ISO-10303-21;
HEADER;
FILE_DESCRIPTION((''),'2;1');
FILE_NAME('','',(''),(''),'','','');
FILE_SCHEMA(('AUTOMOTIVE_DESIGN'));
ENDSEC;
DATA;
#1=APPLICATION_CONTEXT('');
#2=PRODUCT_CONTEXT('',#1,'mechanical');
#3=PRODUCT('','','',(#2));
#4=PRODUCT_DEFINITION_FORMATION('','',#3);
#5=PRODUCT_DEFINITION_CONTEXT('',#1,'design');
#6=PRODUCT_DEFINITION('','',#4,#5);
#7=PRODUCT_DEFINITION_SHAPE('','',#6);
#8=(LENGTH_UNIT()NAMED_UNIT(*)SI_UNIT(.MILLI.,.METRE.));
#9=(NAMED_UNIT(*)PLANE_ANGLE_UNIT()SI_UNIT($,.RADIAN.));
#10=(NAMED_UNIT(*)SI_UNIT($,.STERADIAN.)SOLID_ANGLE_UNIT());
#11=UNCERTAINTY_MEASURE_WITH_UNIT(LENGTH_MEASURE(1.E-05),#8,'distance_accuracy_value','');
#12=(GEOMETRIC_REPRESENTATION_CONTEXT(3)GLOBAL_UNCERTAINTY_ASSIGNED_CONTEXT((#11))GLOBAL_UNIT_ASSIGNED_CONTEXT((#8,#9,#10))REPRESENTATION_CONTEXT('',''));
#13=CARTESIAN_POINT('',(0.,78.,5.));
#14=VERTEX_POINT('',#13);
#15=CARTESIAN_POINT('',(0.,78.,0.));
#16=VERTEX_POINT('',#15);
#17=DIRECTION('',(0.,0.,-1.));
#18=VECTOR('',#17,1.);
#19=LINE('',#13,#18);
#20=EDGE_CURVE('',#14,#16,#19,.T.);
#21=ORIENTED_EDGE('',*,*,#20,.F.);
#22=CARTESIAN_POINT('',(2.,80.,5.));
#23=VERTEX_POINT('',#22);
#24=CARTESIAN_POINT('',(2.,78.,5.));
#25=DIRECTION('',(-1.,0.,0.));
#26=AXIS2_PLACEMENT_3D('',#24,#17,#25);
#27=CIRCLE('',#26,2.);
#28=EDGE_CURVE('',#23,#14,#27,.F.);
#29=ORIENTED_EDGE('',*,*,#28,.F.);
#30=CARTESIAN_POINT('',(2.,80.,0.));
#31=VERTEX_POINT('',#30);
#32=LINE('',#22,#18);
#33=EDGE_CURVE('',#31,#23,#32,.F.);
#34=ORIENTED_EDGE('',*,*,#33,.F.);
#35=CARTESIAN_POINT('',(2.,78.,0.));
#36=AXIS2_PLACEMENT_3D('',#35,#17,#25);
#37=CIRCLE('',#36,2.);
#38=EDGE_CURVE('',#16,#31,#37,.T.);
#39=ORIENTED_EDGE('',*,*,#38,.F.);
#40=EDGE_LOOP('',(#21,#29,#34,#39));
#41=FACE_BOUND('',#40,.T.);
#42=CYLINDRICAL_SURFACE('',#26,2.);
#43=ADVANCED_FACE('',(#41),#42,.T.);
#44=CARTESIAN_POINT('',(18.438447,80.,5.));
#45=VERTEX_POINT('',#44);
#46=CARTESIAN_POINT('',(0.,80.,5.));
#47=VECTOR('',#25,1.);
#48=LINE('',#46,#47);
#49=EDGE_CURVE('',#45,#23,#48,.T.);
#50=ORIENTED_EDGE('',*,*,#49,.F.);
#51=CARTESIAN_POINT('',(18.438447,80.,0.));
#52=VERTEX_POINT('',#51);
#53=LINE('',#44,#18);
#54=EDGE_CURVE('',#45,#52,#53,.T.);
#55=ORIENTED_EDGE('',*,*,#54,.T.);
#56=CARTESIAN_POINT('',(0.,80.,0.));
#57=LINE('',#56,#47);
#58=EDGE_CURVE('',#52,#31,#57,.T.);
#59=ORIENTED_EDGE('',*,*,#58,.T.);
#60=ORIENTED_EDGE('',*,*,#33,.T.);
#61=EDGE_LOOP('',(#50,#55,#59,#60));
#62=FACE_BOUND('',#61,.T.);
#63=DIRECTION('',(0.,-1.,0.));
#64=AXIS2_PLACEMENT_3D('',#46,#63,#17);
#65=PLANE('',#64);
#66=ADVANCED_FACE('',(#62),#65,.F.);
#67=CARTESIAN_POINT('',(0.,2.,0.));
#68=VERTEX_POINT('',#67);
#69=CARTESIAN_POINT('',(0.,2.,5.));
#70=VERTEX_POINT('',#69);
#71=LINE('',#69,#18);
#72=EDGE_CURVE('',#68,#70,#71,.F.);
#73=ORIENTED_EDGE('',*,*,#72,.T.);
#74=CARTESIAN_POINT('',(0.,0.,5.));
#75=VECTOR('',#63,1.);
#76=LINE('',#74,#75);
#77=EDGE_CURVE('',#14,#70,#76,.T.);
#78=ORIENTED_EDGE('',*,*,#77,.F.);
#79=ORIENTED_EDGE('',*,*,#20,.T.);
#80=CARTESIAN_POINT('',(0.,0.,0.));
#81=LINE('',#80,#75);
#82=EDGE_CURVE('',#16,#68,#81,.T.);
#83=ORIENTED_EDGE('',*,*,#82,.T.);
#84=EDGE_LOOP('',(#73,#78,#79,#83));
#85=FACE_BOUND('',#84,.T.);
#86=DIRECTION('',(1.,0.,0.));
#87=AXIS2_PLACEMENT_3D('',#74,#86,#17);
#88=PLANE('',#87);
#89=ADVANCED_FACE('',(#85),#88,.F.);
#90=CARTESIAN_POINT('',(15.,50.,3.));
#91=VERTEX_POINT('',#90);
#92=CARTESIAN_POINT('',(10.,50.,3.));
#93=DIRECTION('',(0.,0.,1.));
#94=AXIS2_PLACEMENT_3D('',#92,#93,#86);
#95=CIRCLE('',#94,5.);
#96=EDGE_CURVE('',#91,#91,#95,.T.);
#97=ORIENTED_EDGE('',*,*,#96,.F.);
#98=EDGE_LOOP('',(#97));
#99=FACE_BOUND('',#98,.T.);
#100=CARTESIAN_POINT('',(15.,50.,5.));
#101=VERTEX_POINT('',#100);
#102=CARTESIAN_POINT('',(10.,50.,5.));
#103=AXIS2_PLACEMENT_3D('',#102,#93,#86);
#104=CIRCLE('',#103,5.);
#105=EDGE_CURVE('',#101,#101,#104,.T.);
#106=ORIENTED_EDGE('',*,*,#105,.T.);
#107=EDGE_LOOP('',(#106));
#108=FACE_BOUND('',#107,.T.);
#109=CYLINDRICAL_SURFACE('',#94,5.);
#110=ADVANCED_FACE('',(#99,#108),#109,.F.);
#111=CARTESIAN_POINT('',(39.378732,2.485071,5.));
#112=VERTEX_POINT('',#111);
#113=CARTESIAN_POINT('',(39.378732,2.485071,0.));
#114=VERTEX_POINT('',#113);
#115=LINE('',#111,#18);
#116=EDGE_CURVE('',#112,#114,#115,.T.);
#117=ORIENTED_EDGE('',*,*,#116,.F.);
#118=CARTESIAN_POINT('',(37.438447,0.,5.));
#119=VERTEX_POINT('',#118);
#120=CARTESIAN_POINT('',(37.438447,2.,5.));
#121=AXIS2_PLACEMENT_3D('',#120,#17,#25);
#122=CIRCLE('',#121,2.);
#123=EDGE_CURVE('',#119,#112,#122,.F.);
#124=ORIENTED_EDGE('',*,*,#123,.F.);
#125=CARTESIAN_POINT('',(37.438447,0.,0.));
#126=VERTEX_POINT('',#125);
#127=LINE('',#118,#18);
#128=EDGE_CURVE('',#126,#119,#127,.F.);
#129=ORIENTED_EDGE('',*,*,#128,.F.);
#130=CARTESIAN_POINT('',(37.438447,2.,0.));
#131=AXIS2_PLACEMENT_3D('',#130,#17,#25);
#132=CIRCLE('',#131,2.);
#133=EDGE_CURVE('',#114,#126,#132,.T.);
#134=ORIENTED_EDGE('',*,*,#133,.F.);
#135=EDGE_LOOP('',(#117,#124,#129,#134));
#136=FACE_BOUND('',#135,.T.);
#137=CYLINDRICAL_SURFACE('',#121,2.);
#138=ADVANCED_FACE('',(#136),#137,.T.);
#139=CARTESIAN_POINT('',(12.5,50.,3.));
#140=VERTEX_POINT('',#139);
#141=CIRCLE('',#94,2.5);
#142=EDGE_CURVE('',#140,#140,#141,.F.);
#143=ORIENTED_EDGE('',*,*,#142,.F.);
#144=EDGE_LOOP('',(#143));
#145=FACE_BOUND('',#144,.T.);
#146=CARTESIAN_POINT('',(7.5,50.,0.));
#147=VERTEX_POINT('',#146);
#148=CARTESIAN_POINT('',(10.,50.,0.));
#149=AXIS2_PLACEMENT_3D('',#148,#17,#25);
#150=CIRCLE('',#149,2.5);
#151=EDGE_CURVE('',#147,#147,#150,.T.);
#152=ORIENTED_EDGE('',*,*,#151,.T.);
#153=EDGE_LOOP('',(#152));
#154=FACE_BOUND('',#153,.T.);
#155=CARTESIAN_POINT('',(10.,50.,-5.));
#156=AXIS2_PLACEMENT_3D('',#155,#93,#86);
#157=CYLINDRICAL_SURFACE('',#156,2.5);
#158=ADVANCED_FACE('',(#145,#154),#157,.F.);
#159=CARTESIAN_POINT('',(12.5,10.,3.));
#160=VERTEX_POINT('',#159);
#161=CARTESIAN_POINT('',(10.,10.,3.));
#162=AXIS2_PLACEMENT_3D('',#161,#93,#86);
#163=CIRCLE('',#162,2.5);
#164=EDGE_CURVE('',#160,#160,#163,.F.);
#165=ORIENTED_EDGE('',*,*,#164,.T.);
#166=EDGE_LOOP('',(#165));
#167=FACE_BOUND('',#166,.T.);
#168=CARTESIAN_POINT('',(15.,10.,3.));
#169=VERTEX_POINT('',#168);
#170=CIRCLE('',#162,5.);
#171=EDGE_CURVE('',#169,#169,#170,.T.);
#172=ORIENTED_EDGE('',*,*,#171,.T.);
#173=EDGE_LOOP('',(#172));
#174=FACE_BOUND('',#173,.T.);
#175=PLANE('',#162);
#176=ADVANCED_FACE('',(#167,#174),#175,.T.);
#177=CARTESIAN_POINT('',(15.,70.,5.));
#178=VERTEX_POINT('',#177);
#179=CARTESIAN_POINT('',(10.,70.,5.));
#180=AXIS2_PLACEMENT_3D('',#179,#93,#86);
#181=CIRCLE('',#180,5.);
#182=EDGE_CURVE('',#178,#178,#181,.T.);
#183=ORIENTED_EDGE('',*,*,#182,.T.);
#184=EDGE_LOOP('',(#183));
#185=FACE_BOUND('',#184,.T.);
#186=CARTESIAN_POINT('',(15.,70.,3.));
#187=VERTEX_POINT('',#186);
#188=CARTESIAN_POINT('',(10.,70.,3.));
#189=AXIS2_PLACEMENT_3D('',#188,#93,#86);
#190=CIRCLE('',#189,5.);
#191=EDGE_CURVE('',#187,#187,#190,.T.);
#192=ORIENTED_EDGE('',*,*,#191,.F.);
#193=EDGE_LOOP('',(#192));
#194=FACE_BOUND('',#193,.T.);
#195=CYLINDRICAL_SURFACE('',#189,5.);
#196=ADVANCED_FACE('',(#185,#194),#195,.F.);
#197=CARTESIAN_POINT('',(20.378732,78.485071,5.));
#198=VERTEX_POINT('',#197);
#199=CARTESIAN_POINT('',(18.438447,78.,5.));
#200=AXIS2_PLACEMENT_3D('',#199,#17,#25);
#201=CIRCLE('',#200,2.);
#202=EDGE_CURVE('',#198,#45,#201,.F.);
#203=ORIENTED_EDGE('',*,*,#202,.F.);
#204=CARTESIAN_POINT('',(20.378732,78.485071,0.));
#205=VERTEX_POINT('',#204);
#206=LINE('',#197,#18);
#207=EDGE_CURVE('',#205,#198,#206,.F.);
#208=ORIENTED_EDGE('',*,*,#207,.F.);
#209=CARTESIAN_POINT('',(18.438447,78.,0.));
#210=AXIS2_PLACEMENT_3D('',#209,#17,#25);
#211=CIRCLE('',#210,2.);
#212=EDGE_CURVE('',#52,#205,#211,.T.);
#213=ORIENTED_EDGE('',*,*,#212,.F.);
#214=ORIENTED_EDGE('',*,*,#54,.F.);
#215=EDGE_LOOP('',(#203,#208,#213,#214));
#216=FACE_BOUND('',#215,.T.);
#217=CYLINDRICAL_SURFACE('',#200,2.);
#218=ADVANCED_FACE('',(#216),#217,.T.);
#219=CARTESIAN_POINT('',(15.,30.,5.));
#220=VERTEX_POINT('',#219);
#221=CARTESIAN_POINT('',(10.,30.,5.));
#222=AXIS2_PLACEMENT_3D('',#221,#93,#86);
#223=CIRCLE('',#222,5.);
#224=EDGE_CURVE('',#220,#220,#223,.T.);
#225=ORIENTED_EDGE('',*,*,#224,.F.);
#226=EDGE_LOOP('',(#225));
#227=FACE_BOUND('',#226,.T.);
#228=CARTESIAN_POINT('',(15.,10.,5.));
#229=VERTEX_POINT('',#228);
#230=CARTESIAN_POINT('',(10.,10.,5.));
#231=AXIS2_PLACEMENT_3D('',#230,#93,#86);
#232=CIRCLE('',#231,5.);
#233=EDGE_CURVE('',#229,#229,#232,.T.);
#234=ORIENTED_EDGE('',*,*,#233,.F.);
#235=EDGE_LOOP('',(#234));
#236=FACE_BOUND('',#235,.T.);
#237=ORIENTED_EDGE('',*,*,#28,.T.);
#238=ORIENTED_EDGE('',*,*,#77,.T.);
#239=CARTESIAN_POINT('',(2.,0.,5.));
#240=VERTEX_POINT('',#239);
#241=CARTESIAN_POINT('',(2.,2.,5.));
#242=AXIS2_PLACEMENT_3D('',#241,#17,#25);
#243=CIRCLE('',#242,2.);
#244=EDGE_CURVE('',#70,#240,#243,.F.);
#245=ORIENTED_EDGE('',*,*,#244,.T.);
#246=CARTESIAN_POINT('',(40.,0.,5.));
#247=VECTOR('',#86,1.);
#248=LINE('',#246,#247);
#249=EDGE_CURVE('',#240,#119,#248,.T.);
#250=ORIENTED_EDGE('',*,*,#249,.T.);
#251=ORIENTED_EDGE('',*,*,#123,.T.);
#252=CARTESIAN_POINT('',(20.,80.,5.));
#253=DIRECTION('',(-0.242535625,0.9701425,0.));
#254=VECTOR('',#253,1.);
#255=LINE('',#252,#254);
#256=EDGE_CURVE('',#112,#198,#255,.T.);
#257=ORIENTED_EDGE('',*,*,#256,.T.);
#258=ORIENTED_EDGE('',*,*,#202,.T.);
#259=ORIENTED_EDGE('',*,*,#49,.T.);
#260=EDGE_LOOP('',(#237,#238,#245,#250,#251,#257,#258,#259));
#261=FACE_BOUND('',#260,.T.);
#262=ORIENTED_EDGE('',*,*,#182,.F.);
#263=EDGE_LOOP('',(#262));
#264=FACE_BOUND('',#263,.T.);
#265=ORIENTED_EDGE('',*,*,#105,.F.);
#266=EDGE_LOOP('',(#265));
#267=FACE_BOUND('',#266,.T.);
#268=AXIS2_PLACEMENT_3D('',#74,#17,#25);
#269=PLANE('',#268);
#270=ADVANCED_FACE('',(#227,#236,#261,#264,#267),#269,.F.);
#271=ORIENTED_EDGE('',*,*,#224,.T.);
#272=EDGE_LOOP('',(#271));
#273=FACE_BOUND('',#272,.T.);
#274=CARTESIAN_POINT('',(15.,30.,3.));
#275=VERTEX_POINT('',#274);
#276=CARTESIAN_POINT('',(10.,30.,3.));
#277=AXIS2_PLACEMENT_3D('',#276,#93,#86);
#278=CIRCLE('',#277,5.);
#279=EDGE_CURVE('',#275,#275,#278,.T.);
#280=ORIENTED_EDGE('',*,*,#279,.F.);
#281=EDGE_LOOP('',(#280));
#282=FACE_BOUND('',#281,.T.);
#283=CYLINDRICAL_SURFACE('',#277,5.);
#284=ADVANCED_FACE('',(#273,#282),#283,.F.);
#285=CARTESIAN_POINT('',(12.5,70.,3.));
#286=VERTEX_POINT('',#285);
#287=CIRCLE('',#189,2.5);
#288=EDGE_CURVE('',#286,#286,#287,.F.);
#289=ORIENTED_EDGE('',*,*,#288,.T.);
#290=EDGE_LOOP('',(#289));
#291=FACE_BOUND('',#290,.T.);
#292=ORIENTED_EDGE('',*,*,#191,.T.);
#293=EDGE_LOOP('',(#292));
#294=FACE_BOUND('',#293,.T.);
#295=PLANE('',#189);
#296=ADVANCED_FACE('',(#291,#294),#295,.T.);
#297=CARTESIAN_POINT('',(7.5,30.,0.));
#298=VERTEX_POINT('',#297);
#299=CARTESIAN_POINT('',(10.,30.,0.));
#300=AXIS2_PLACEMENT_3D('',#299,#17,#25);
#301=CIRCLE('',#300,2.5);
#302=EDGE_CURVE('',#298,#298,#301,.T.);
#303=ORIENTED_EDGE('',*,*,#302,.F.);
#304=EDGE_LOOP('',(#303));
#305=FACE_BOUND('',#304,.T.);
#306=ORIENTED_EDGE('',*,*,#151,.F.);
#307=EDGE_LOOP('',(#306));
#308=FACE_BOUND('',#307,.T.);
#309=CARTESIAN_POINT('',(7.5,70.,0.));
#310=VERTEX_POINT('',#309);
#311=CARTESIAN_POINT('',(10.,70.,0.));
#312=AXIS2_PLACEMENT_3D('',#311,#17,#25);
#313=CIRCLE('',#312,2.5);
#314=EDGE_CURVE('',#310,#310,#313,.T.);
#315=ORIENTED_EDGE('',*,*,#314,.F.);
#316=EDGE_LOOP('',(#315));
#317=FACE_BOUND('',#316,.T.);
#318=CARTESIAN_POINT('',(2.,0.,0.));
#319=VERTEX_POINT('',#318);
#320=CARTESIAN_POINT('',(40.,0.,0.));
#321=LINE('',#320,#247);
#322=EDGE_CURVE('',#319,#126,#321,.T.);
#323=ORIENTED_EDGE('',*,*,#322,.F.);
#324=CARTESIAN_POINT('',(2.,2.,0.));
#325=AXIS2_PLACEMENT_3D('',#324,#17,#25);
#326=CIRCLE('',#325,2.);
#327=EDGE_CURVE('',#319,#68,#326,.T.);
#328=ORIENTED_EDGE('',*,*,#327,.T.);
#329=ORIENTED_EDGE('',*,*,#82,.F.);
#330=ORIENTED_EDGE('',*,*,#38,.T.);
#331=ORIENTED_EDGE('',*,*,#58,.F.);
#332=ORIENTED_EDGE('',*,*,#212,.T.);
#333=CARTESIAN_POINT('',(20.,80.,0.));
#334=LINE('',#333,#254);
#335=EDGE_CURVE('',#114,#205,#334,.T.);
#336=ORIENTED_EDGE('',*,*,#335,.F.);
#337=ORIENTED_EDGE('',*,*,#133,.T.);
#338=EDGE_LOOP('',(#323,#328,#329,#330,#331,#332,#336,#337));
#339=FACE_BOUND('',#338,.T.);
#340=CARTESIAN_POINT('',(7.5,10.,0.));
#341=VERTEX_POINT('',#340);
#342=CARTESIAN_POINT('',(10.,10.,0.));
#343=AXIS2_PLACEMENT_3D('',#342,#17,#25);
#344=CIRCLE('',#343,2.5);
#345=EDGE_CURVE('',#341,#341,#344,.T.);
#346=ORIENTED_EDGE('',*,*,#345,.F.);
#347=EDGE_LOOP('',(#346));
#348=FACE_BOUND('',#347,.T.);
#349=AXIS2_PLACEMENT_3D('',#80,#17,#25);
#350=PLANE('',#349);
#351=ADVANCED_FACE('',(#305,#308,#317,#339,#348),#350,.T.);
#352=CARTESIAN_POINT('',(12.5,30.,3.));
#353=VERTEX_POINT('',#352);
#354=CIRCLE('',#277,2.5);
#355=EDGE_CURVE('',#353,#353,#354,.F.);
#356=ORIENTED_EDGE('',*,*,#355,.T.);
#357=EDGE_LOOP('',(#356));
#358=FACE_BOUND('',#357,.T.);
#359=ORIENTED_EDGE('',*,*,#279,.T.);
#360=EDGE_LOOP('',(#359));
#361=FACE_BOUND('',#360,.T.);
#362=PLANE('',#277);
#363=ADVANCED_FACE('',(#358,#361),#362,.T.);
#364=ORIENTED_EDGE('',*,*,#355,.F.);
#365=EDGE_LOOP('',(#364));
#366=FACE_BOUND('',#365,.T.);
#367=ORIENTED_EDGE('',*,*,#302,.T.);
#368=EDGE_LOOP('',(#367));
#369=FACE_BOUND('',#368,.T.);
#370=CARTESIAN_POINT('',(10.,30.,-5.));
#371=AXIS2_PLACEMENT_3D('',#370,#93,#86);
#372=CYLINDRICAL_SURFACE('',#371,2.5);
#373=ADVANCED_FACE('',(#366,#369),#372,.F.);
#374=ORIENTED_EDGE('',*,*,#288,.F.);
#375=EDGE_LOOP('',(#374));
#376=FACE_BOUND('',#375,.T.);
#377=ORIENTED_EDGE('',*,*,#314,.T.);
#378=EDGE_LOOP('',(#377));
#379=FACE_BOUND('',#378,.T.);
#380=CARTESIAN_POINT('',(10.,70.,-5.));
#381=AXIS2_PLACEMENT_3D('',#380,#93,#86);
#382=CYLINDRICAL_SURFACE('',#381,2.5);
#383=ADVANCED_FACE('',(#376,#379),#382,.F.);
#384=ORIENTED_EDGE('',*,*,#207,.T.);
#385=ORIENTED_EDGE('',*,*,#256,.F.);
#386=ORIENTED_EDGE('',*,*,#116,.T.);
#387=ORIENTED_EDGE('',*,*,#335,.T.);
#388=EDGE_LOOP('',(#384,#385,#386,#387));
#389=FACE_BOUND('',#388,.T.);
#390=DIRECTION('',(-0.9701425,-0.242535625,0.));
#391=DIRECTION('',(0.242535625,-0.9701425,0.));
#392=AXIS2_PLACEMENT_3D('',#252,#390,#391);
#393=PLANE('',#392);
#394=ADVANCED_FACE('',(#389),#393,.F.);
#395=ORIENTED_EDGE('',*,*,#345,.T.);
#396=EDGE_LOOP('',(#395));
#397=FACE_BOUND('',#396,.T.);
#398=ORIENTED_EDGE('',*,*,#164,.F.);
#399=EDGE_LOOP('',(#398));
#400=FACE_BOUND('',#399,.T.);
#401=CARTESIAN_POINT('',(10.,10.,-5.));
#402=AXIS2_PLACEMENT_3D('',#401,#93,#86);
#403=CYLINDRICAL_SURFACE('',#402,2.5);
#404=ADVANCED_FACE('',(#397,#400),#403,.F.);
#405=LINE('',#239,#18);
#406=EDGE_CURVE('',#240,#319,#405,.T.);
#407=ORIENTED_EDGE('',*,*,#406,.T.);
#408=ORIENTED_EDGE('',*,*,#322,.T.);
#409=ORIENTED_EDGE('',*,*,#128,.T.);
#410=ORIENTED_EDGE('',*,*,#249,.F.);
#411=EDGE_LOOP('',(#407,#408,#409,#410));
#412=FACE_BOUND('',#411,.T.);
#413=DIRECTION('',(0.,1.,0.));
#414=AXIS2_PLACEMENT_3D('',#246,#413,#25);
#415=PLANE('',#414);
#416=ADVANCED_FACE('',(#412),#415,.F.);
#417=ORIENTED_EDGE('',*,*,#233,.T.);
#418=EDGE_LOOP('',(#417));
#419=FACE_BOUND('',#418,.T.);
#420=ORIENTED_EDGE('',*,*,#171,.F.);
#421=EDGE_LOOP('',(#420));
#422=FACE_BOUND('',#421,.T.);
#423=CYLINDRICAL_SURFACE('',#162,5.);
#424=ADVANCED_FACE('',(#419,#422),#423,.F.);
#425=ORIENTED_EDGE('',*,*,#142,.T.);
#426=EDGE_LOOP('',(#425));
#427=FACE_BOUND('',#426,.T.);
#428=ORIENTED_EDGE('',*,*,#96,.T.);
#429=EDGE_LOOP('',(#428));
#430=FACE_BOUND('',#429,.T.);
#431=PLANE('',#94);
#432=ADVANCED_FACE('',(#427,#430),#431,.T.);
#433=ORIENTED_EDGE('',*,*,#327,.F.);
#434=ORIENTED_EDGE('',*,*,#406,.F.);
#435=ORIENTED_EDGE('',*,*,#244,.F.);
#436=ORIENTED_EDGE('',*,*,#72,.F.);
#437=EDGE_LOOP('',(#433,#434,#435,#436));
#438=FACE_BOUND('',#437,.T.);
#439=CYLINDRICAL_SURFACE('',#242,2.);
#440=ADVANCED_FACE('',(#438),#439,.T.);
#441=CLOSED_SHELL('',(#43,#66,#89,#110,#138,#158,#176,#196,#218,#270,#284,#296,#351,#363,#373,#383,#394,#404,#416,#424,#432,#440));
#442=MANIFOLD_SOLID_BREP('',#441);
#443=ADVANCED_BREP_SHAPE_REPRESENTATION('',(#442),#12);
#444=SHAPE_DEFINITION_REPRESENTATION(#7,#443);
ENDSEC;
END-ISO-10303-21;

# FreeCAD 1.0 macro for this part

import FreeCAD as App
import Part
import Sketcher
from FreeCAD import Vector
Q = App.Units.Quantity


def edges_at(feature, points):
    """Names of the edges that pass closest to the given points."""
    edges = feature.Shape.Edges
    near = lambda p: min(range(len(edges)), key=lambda i: edges[i].distToShape(Part.Vertex(*p))[0])
    return sorted({f"Edge{near(p) + 1}" for p in points})


def add_polygon(sketch, points):
    """Adds a closed chain of lines whose ends are joined by coincident constraints."""
    first, n = sketch.GeometryCount, len(points)
    for a, b in zip(points, points[1:] + points[:1]):
        sketch.addGeometry(Part.LineSegment(App.Vector(*a, 0), App.Vector(*b, 0)), False)
    for i in range(n):
        sketch.addConstraint(Sketcher.Constraint("Coincident", first + i, 2, first + (i + 1) % n, 1))

doc = App.newDocument("Part")
body = doc.addObject("PartDesign::Body", "Body")

# Sketch on XY plane
sketch1 = doc.addObject("Sketcher::SketchObject", "Sketch")
body.addObject(sketch1)
sketch1.AttachmentSupport = (doc.XY_Plane, [""])
sketch1.MapMode = "FlatFace"
add_polygon(sketch1, [(0, 80), (0, 0), (40, 0), (20, 80)])  # lines 0-3
sketch1.addConstraint([
    Sketcher.Constraint("Vertical", 0),
    Sketcher.Constraint("Horizontal", 1),
    Sketcher.Constraint("Horizontal", 3),
    Sketcher.Constraint("Coincident", 0, 2, -1, 1),
    Sketcher.Constraint("DistanceX", 1, 1, 1, 2, Q("40 mm")),
    Sketcher.Constraint("DistanceX", 3, 2, 3, 1, Q("20 mm")),
    Sketcher.Constraint("DistanceY", 0, 2, 0, 1, Q("80 mm")),
])
pad1 = doc.addObject("PartDesign::Pad", "Pad")
body.addObject(pad1)
pad1.Profile = sketch1
pad1.Length = 5

# Sketch on XY plane
sketch2 = doc.addObject("Sketcher::SketchObject", "Sketch001")
body.addObject(sketch2)
sketch2.AttachmentSupport = (doc.XY_Plane, [""])
sketch2.MapMode = "FlatFace"
sketch2.AttachmentOffset = App.Placement(Vector(0, 0, 5), App.Rotation())
sketch2.addGeometry([
    Part.Circle(Vector(10, 70, 0), Vector(0, 0, 1), 2.5),
    Part.Circle(Vector(10, 50, 0), Vector(0, 0, 1), 2.5),
    Part.Circle(Vector(10, 30, 0), Vector(0, 0, 1), 2.5),
    Part.Circle(Vector(10, 10, 0), Vector(0, 0, 1), 2.5),
], False)
sketch2.addConstraint([
    Sketcher.Constraint("Equal", 0, 1),
    Sketcher.Constraint("Equal", 1, 2),
    Sketcher.Constraint("Equal", 2, 3),
    Sketcher.Constraint("Vertical", 0, 3, 1, 3),
    Sketcher.Constraint("Vertical", 1, 3, 2, 3),
    Sketcher.Constraint("Vertical", 2, 3, 3, 3),
    Sketcher.Constraint("Diameter", 0, Q("5 mm")),
    Sketcher.Constraint("DistanceX", -1, 1, 0, 3, Q("10 mm")),
    Sketcher.Constraint("DistanceY", -1, 1, 0, 3, Q("70 mm")),
    Sketcher.Constraint("DistanceY", -1, 1, 1, 3, Q("50 mm")),
    Sketcher.Constraint("DistanceY", -1, 1, 2, 3, Q("30 mm")),
    Sketcher.Constraint("DistanceY", -1, 1, 3, 3, Q("10 mm")),
])
pocket1 = doc.addObject("PartDesign::Pocket", "Pocket")
body.addObject(pocket1)
pocket1.Profile = sketch2
pocket1.Length = 10

# Sketch on XY plane
sketch3 = doc.addObject("Sketcher::SketchObject", "Sketch002")
body.addObject(sketch3)
sketch3.AttachmentSupport = (doc.XY_Plane, [""])
sketch3.MapMode = "FlatFace"
sketch3.AttachmentOffset = App.Placement(Vector(0, 0, 5), App.Rotation())
sketch3.addGeometry([
    Part.Circle(Vector(10, 70, 0), Vector(0, 0, 1), 5),
    Part.Circle(Vector(10, 50, 0), Vector(0, 0, 1), 5),
    Part.Circle(Vector(10, 30, 0), Vector(0, 0, 1), 5),
    Part.Circle(Vector(10, 10, 0), Vector(0, 0, 1), 5),
], False)
sketch3.addConstraint([
    Sketcher.Constraint("Equal", 0, 1),
    Sketcher.Constraint("Equal", 1, 2),
    Sketcher.Constraint("Equal", 2, 3),
    Sketcher.Constraint("Vertical", 0, 3, 1, 3),
    Sketcher.Constraint("Vertical", 1, 3, 2, 3),
    Sketcher.Constraint("Vertical", 2, 3, 3, 3),
    Sketcher.Constraint("Diameter", 0, Q("10 mm")),
    Sketcher.Constraint("DistanceX", -1, 1, 0, 3, Q("10 mm")),
    Sketcher.Constraint("DistanceY", -1, 1, 0, 3, Q("70 mm")),
    Sketcher.Constraint("DistanceY", -1, 1, 1, 3, Q("50 mm")),
    Sketcher.Constraint("DistanceY", -1, 1, 2, 3, Q("30 mm")),
    Sketcher.Constraint("DistanceY", -1, 1, 3, 3, Q("10 mm")),
])
pocket2 = doc.addObject("PartDesign::Pocket", "Pocket001")
body.addObject(pocket2)
pocket2.Profile = sketch3
pocket2.Length = 2
doc.recompute()

fillet = doc.addObject("PartDesign::Fillet", "Fillet")
body.addObject(fillet)
fillet.Base = (pocket2, edges_at(pocket2, [
    (0, 0, 2.5),
    (0, 80, 2.5),
    (20, 80, 2.5),
    (40, 0, 2.5),
]))
fillet.Radius = 2

doc.recompute()
